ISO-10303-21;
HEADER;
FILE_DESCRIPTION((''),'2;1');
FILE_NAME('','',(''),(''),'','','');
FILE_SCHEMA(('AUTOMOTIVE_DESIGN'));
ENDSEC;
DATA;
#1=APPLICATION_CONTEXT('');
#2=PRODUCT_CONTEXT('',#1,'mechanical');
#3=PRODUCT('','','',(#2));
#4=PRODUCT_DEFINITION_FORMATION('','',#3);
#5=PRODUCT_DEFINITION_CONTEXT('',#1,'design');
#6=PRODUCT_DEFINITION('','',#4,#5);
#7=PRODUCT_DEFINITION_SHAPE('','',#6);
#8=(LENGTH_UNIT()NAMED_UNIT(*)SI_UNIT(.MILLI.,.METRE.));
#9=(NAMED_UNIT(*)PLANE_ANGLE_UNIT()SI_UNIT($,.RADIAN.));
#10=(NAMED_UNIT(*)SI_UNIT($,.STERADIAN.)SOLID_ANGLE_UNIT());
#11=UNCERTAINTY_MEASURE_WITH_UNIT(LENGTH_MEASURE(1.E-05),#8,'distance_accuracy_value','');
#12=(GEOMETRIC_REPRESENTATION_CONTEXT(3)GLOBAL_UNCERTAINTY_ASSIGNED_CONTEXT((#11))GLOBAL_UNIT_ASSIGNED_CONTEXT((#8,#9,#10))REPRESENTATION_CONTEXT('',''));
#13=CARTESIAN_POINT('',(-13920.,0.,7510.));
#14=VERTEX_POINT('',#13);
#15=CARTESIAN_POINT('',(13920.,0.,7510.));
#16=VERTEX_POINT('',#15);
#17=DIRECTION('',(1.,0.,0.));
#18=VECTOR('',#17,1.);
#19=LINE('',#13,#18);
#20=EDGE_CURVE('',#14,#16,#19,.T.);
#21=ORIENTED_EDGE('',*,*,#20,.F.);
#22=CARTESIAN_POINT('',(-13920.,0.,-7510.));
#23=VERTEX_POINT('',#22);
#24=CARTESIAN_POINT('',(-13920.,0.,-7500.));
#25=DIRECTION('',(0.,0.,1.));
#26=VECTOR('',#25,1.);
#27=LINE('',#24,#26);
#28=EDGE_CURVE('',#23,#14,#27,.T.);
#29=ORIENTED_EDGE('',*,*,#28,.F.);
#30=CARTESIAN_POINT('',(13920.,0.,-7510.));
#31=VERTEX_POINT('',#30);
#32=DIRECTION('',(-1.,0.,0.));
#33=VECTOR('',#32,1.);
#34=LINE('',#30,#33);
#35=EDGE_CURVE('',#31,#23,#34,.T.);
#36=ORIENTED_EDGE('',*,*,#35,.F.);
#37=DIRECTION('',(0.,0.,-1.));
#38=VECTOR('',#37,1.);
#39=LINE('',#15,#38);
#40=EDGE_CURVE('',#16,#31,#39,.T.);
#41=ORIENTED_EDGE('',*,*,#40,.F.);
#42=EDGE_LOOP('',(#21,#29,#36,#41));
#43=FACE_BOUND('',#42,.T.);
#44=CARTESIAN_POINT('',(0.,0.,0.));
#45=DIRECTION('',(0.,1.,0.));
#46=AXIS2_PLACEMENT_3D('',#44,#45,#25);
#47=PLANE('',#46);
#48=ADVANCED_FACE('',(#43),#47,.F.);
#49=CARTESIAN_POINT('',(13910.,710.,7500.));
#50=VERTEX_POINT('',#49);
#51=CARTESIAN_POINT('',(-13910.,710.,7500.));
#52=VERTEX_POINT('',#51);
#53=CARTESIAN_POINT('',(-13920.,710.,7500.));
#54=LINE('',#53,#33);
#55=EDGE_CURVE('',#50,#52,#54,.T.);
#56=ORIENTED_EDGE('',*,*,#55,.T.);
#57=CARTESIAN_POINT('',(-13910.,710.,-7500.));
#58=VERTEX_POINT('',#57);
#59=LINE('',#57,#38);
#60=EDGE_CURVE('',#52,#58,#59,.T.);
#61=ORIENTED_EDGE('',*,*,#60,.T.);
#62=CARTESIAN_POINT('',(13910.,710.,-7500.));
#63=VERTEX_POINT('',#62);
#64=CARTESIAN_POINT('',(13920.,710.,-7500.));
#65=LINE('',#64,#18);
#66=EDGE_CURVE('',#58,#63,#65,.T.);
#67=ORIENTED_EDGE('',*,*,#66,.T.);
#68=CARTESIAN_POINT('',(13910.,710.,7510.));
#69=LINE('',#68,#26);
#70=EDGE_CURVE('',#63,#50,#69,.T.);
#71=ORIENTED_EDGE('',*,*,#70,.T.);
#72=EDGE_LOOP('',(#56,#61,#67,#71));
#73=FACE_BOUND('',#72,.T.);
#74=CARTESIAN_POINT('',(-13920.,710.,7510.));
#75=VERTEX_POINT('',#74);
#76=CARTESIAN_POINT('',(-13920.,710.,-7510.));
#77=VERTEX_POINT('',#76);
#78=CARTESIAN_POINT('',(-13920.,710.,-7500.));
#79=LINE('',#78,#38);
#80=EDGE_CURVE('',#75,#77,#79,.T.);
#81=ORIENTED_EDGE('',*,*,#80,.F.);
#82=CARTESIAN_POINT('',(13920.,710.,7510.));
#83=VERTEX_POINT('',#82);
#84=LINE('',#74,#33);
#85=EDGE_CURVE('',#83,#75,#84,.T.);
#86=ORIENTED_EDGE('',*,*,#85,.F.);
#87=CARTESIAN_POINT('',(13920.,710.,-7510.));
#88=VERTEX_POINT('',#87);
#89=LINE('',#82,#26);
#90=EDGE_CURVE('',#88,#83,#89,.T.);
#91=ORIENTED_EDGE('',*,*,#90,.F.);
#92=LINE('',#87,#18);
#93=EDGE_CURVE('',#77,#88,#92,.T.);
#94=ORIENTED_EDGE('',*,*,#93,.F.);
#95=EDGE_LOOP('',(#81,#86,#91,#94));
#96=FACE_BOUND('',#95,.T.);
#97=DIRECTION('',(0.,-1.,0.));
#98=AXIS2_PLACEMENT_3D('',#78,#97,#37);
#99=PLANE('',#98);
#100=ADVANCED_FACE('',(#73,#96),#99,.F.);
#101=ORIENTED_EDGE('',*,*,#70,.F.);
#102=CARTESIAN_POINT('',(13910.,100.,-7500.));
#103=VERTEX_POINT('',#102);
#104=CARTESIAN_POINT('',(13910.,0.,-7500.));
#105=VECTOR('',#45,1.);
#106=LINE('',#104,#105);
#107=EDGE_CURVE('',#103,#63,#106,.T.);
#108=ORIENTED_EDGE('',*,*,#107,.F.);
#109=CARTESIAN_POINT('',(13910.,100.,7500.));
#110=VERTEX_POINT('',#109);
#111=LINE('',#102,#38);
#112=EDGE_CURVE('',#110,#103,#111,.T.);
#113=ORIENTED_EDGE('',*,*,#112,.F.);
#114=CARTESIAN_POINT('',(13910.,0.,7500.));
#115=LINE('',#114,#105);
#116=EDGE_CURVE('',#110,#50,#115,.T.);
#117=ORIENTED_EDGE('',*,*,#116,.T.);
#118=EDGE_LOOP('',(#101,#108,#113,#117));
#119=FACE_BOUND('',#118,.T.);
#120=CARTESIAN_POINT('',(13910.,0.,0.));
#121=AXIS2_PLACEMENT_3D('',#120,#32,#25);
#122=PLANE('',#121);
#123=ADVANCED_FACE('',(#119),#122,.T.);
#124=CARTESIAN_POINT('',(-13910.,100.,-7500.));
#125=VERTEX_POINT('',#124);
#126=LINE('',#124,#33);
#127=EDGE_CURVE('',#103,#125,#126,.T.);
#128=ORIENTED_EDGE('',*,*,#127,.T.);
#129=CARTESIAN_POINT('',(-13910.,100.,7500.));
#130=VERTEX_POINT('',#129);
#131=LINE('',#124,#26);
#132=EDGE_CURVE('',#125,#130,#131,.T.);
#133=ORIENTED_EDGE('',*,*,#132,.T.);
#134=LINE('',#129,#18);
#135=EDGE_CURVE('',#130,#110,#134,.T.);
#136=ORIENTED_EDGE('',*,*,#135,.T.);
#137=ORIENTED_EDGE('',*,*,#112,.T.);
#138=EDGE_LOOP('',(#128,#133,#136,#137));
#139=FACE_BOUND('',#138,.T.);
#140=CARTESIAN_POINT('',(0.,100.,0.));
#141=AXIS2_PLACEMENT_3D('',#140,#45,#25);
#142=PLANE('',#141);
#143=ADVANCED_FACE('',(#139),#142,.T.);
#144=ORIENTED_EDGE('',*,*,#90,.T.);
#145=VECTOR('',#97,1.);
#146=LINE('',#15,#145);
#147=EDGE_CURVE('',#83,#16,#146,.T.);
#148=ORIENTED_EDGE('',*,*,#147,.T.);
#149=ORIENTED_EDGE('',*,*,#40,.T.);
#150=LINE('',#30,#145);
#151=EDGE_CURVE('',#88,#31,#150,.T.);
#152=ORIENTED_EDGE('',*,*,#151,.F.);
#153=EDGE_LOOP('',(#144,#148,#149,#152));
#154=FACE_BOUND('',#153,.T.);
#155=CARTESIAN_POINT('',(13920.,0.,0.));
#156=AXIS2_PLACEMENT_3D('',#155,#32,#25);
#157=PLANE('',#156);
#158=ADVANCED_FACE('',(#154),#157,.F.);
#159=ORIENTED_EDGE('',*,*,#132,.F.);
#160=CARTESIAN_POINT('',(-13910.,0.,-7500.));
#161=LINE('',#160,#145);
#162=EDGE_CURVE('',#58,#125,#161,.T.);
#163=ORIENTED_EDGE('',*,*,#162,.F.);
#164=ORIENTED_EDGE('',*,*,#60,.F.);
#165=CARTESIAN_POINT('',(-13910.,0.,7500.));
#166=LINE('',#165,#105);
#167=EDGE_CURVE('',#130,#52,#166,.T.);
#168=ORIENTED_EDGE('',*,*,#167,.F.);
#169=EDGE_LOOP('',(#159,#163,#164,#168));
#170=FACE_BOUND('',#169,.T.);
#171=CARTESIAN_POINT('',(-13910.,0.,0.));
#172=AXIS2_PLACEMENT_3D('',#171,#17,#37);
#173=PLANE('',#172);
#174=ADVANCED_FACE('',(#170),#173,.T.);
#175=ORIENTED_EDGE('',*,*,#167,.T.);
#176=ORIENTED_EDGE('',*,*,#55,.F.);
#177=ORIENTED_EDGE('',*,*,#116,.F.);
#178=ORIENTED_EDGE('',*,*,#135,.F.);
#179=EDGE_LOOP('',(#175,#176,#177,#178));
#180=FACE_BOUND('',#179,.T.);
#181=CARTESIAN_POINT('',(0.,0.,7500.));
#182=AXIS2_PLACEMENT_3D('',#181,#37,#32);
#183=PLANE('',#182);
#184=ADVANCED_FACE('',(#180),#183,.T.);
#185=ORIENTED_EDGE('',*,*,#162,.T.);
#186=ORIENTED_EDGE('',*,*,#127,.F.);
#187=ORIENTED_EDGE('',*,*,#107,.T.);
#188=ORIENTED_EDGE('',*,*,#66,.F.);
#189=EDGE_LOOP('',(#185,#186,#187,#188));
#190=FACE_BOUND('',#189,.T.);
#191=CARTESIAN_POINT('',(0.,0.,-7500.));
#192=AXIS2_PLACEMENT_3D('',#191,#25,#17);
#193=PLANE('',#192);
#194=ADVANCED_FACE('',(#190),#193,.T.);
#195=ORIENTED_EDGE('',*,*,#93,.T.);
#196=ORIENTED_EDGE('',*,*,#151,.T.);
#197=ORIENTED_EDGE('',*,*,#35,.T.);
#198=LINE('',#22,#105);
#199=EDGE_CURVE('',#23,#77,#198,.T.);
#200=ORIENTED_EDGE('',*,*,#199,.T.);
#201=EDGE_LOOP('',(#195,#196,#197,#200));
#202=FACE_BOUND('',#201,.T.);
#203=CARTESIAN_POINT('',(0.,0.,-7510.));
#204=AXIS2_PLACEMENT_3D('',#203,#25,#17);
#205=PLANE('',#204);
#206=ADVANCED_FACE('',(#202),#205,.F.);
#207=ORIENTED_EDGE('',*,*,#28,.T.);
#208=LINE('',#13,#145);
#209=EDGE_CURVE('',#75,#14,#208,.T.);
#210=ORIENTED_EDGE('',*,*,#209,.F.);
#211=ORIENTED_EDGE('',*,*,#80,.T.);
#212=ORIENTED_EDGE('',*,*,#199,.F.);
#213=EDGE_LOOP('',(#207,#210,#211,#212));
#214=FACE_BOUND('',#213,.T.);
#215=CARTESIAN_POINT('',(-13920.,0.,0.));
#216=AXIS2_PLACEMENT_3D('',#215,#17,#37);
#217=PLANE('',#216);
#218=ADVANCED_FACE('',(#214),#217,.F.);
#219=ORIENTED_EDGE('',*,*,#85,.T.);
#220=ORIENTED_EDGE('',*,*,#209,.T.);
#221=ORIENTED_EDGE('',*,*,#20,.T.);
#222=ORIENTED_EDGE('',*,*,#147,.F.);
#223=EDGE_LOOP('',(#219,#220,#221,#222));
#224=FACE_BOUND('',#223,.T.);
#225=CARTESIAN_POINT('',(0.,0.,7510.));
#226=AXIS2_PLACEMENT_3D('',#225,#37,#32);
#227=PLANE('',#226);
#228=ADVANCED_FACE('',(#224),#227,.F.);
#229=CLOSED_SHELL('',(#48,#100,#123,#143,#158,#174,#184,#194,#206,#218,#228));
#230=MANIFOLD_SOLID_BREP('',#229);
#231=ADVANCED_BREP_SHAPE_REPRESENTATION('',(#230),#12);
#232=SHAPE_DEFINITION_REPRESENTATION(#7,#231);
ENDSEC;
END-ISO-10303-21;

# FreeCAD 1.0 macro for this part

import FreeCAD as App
import Part
import Sketcher
Q = App.Units.Quantity


def add_polygon(sketch, points):
    """Adds a closed chain of lines whose ends are joined by coincident constraints."""
    first, n = sketch.GeometryCount, len(points)
    for a, b in zip(points, points[1:] + points[:1]):
        sketch.addGeometry(Part.LineSegment(App.Vector(*a, 0), App.Vector(*b, 0)), False)
    for i in range(n):
        sketch.addConstraint(Sketcher.Constraint("Coincident", first + i, 2, first + (i + 1) % n, 1))

doc = App.newDocument("Part")
body = doc.addObject("PartDesign::Body", "Body")

# Sketch on XZ plane
sketch1 = body.newObject("Sketcher::SketchObject", "Sketch")
sketch1.AttachmentSupport = (doc.getObject("XZ_Plane"), [""])
sketch1.MapMode = "FlatFace"
add_polygon(sketch1, [(-13910, -7500), (-13910, 7500), (13910, 7500), (13910, -7500)])  # lines 0-3
sketch1.addConstraint([
    Sketcher.Constraint("Vertical", 0),
    Sketcher.Constraint("Horizontal", 1),
    Sketcher.Constraint("Vertical", 2),
    Sketcher.Constraint("Horizontal", 3),
    Sketcher.Constraint("Symmetric", 0, 2, 2, 2, -1, 1),
    Sketcher.Constraint("DistanceX", 1, 1, 1, 2, Q("27820 mm")),
    Sketcher.Constraint("DistanceY", 0, 1, 0, 2, Q("15000 mm")),
])
pad1 = body.newObject("PartDesign::Pad", "Pad")
pad1.Profile = sketch1
pad1.Length = 100
pad1.Reversed = True

# Sketch on YZ plane
sketch2 = body.newObject("Sketcher::SketchObject", "Sketch001")
sketch2.AttachmentSupport = (doc.getObject("YZ_Plane"), [""])
sketch2.MapMode = "FlatFace"
sketch2.AttachmentOffset = App.Placement(App.Vector(0, 0, -13910), App.Rotation())
add_polygon(sketch2, [(710, -7500), (0, -7500), (0, 7500), (710, 7500)])  # lines 0-3
sketch2.addConstraint([
    Sketcher.Constraint("Horizontal", 0),
    Sketcher.Constraint("Vertical", 1),
    Sketcher.Constraint("Horizontal", 2),
    Sketcher.Constraint("Vertical", 3),
    Sketcher.Constraint("Symmetric", 0, 2, 1, 2, -1, 1),
    Sketcher.Constraint("DistanceX", 0, 2, 0, 1, Q("710 mm")),
    Sketcher.Constraint("DistanceY", 1, 1, 1, 2, Q("15000 mm")),
])
pad2 = body.newObject("PartDesign::Pad", "Pad001")
pad2.Profile = sketch2
pad2.Length = 10
pad2.Reversed = True

# Sketch on XY plane
sketch3 = body.newObject("Sketcher::SketchObject", "Sketch002")
sketch3.AttachmentSupport = (doc.getObject("XY_Plane"), [""])
sketch3.MapMode = "FlatFace"
sketch3.AttachmentOffset = App.Placement(App.Vector(0, 0, 7500), App.Rotation())
add_polygon(sketch3, [(-13920, 710), (-13920, 0), (13910, 0), (13910, 710)])  # lines 0-3
sketch3.addConstraint([
    Sketcher.Constraint("Vertical", 0),
    Sketcher.Constraint("Horizontal", 1),
    Sketcher.Constraint("Vertical", 2),
    Sketcher.Constraint("Horizontal", 3),
    Sketcher.Constraint("PointOnObject", 0, 2, -1),
    Sketcher.Constraint("DistanceX", 1, 1, 1, 2, Q("27830 mm")),
    Sketcher.Constraint("DistanceY", 0, 2, 0, 1, Q("710 mm")),
    Sketcher.Constraint("DistanceX", 0, 2, -1, 1, Q("13920 mm")),
])
pad3 = body.newObject("PartDesign::Pad", "Pad002")
pad3.Profile = sketch3
pad3.Length = 10

# Sketch on YZ plane
sketch4 = body.newObject("Sketcher::SketchObject", "Sketch003")
sketch4.AttachmentSupport = (doc.getObject("YZ_Plane"), [""])
sketch4.MapMode = "FlatFace"
sketch4.AttachmentOffset = App.Placement(App.Vector(0, 0, 13910), App.Rotation())
add_polygon(sketch4, [(710, 7510), (0, 7510), (0, -7500), (710, -7500)])  # lines 0-3
sketch4.addConstraint([
    Sketcher.Constraint("Horizontal", 0),
    Sketcher.Constraint("Vertical", 1),
    Sketcher.Constraint("Horizontal", 2),
    Sketcher.Constraint("Vertical", 3),
    Sketcher.Constraint("PointOnObject", 0, 2, -2),
    Sketcher.Constraint("DistanceX", 0, 2, 0, 1, Q("710 mm")),
    Sketcher.Constraint("DistanceY", 1, 2, 1, 1, Q("15010 mm")),
    Sketcher.Constraint("DistanceY", -1, 1, 0, 2, Q("7510 mm")),
])
pad4 = body.newObject("PartDesign::Pad", "Pad003")
pad4.Profile = sketch4
pad4.Length = 10

# Sketch on XY plane
sketch5 = body.newObject("Sketcher::SketchObject", "Sketch004")
sketch5.AttachmentSupport = (doc.getObject("XY_Plane"), [""])
sketch5.MapMode = "FlatFace"
sketch5.AttachmentOffset = App.Placement(App.Vector(0, 0, -7500), App.Rotation())
add_polygon(sketch5, [(13920, 710), (13920, 0), (-13920, 0), (-13920, 710)])  # lines 0-3
sketch5.addConstraint([
    Sketcher.Constraint("Vertical", 0),
    Sketcher.Constraint("Horizontal", 1),
    Sketcher.Constraint("Vertical", 2),
    Sketcher.Constraint("Horizontal", 3),
    Sketcher.Constraint("Symmetric", 0, 2, 1, 2, -1, 1),
    Sketcher.Constraint("DistanceX", 1, 2, 1, 1, Q("27840 mm")),
    Sketcher.Constraint("DistanceY", 0, 2, 0, 1, Q("710 mm")),
])
pad5 = body.newObject("PartDesign::Pad", "Pad004")
pad5.Profile = sketch5
pad5.Length = 10
pad5.Reversed = True

doc.recompute()
